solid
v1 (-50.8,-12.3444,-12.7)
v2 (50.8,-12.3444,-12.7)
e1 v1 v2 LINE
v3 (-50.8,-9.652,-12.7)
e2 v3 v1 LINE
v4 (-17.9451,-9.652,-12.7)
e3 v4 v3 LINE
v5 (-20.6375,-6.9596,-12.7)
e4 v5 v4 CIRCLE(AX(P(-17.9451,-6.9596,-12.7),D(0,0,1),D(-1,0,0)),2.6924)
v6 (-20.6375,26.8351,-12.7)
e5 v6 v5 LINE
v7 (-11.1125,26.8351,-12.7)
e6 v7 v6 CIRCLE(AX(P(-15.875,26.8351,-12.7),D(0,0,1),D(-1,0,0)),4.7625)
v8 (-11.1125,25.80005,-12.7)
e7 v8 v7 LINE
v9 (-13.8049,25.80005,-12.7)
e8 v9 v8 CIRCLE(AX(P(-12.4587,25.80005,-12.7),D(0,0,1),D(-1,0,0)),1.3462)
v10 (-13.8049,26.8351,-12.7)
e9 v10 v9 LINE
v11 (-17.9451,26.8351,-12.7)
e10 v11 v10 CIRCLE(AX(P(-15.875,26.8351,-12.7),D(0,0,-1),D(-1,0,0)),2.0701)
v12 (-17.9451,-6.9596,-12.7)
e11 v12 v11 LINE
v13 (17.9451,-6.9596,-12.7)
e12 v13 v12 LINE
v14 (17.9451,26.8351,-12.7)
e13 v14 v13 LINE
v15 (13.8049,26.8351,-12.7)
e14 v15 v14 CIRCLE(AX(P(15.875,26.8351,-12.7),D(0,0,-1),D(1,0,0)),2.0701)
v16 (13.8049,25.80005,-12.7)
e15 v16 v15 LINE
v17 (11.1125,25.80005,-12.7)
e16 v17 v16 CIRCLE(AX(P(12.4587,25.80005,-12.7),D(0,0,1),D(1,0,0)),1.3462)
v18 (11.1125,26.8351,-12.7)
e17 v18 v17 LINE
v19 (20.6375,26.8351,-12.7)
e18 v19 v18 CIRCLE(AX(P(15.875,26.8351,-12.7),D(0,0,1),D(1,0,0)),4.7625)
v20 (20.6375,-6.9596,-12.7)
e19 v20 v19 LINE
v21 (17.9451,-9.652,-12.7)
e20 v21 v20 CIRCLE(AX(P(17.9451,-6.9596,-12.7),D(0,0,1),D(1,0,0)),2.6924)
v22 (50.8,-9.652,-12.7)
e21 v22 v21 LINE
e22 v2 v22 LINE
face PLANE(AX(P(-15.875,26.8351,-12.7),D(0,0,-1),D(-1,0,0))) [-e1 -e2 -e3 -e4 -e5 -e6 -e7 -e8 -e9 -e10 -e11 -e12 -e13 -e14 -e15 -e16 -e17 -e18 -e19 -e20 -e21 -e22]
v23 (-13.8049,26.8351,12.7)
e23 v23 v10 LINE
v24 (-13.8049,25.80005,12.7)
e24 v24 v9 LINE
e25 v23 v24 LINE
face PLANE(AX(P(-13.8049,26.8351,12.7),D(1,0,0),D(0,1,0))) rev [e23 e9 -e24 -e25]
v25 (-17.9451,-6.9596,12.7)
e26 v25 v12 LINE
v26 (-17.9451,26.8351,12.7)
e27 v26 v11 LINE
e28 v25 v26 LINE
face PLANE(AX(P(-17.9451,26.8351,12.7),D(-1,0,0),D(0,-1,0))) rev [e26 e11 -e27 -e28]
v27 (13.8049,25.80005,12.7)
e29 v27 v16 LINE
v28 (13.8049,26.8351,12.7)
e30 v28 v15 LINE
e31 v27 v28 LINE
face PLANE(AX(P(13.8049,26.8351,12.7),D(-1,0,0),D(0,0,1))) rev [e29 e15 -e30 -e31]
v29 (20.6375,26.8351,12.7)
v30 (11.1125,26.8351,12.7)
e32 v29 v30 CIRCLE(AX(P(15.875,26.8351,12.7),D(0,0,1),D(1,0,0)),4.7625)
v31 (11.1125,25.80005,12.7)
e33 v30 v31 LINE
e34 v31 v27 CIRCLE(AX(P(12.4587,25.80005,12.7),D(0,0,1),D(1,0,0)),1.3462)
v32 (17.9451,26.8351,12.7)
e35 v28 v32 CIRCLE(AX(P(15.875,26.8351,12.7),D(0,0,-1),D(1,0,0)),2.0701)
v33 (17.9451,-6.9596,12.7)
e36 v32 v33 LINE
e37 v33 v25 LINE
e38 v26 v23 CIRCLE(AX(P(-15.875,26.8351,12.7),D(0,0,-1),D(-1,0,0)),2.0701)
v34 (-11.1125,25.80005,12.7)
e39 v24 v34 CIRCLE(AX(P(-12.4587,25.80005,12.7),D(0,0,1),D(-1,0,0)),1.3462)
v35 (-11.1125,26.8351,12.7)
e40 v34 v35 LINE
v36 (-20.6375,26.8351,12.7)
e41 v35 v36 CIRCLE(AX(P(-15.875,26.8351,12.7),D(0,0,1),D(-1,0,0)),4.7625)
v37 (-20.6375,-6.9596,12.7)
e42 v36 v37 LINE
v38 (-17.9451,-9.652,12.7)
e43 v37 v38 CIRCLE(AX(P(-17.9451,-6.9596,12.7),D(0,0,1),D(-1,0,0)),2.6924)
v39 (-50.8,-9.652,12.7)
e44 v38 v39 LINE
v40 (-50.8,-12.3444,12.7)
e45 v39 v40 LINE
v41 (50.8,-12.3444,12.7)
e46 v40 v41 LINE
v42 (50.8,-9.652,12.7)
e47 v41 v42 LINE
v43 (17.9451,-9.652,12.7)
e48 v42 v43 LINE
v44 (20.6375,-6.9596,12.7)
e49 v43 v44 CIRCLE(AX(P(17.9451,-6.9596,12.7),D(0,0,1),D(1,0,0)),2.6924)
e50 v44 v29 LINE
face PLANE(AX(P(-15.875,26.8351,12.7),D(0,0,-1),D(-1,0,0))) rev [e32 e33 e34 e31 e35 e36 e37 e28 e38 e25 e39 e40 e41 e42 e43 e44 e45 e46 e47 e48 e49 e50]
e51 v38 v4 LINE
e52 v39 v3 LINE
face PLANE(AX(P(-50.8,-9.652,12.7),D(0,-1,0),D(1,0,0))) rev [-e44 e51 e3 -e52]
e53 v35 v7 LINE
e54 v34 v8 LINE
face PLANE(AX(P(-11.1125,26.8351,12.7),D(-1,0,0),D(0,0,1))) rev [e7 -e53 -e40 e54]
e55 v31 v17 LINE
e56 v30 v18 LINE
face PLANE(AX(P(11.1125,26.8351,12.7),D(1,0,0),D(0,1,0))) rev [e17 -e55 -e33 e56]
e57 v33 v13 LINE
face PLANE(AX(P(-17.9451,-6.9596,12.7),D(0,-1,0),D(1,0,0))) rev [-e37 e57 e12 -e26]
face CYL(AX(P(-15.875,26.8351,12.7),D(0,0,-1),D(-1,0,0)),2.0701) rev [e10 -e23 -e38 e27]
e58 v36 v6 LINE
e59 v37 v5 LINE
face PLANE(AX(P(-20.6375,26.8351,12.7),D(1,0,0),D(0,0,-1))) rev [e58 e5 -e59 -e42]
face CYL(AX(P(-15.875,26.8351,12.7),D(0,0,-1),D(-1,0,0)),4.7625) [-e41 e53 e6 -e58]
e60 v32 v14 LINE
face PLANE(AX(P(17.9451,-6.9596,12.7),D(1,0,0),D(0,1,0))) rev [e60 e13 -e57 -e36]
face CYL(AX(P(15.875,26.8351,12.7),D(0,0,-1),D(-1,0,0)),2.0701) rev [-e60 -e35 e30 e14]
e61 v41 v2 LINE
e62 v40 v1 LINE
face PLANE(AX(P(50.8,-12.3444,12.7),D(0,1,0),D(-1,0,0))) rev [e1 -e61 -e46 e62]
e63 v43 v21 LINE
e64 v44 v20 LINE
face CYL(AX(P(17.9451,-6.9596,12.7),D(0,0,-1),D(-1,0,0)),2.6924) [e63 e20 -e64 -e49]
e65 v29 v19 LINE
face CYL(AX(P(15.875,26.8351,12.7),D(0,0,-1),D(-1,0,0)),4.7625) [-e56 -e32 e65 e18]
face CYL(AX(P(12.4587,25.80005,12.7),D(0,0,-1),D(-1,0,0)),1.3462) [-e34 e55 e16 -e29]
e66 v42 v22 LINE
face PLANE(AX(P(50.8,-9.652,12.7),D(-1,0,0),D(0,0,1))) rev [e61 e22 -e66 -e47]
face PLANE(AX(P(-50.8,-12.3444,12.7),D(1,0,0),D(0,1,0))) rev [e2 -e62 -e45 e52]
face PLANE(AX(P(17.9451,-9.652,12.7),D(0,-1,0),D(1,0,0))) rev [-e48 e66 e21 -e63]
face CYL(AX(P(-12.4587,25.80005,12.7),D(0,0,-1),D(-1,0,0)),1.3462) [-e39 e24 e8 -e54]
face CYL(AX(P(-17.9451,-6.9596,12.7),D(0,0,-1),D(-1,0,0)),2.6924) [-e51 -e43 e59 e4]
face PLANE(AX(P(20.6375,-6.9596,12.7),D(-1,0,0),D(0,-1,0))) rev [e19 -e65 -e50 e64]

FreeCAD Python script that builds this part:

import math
import FreeCAD as App
import Part
import Sketcher
from FreeCAD import Vector
Q = App.Units.Quantity

doc = App.newDocument("Part")
body = doc.addObject("PartDesign::Body", "Body")

sketch1 = body.newObject("Sketcher::SketchObject", "Sketch")
sketch1.AttachmentSupport = (doc.getObject("XY_Plane"), [""])
sketch1.MapMode = "FlatFace"
sketch1.addGeometry([
    Part.LineSegment(Vector(-20.6, 26.8, 0), Vector(-20.6, -7, 0)),
    Part.ArcOfCircle(Part.Circle(Vector(-17.9, -7, 0), Vector(0, 0, 1), 2.7), math.radians(180), math.radians(270)),
    Part.LineSegment(Vector(-17.9, -9.7, 0), Vector(-50.8, -9.7, 0)),
    Part.LineSegment(Vector(-50.8, -9.7, 0), Vector(-50.8, -12.3, 0)),
    Part.LineSegment(Vector(-50.8, -12.3, 0), Vector(50.8, -12.3, 0)),
    Part.LineSegment(Vector(50.8, -12.3, 0), Vector(50.8, -9.7, 0)),
    Part.LineSegment(Vector(50.8, -9.7, 0), Vector(17.9, -9.7, 0)),
    Part.ArcOfCircle(Part.Circle(Vector(17.9, -7, 0), Vector(0, 0, 1), 2.7), math.radians(-90), math.radians(0)),
    Part.LineSegment(Vector(20.6, -7, 0), Vector(20.6, 26.8, 0)),
    Part.ArcOfCircle(Part.Circle(Vector(15.9, 26.8, 0), Vector(0, 0, 1), 4.8), math.radians(0), math.radians(180)),
    Part.LineSegment(Vector(11.1, 26.8, 0), Vector(11.1, 25.8, 0)),
    Part.ArcOfCircle(Part.Circle(Vector(12.5, 25.8, 0), Vector(0, 0, 1), 1.3), math.radians(180), math.radians(360)),
    Part.LineSegment(Vector(13.8, 25.8, 0), Vector(13.8, 26.8, 0)),
    Part.ArcOfCircle(Part.Circle(Vector(15.9, 26.8, 0), Vector(0, 0, 1), 2.1), math.radians(0), math.radians(180)),
    Part.LineSegment(Vector(17.9, 26.8, 0), Vector(17.9, -7, 0)),
    Part.LineSegment(Vector(17.9, -7, 0), Vector(-17.9, -7, 0)),
    Part.LineSegment(Vector(-17.9, -7, 0), Vector(-17.9, 26.8, 0)),
    Part.ArcOfCircle(Part.Circle(Vector(-15.9, 26.8, 0), Vector(0, 0, 1), 2.1), math.radians(0), math.radians(180)),
    Part.LineSegment(Vector(-13.8, 26.8, 0), Vector(-13.8, 25.8, 0)),
    Part.ArcOfCircle(Part.Circle(Vector(-12.5, 25.8, 0), Vector(0, 0, 1), 1.3), math.radians(180), math.radians(360)),
    Part.LineSegment(Vector(-11.1, 25.8, 0), Vector(-11.1, 26.8, 0)),
    Part.ArcOfCircle(Part.Circle(Vector(-15.9, 26.8, 0), Vector(0, 0, 1), 4.8), math.radians(0), math.radians(180)),
], False)
sketch1.addConstraint([
    Sketcher.Constraint("Tangent", 0, 2, 1, 1),
    Sketcher.Constraint("Tangent", 1, 2, 2, 1),
    Sketcher.Constraint("Coincident", 2, 2, 3, 1),
    Sketcher.Constraint("Coincident", 3, 2, 4, 1),
    Sketcher.Constraint("Coincident", 4, 2, 5, 1),
    Sketcher.Constraint("Coincident", 5, 2, 6, 1),
    Sketcher.Constraint("Tangent", 6, 2, 7, 1),
    Sketcher.Constraint("Tangent", 7, 2, 8, 1),
    Sketcher.Constraint("Tangent", 8, 2, 9, 1),
    Sketcher.Constraint("Tangent", 9, 2, 10, 1),
    Sketcher.Constraint("Tangent", 10, 2, 11, 1),
    Sketcher.Constraint("Tangent", 11, 2, 12, 1),
    Sketcher.Constraint("Tangent", 12, 2, 13, 2),
    Sketcher.Constraint("Tangent", 13, 1, 14, 1),
    Sketcher.Constraint("Coincident", 14, 2, 15, 1),
    Sketcher.Constraint("Coincident", 15, 2, 16, 1),
    Sketcher.Constraint("Tangent", 16, 2, 17, 2),
    Sketcher.Constraint("Tangent", 17, 1, 18, 1),
    Sketcher.Constraint("Tangent", 18, 2, 19, 1),
    Sketcher.Constraint("Tangent", 19, 2, 20, 1),
    Sketcher.Constraint("Tangent", 20, 2, 21, 1),
    Sketcher.Constraint("Tangent", 21, 2, 0, 1),
    Sketcher.Constraint("Vertical", 0),
    Sketcher.Constraint("Horizontal", 2),
    Sketcher.Constraint("Vertical", 3),
    Sketcher.Constraint("Horizontal", 4),
    Sketcher.Constraint("Vertical", 5),
    Sketcher.Constraint("Horizontal", 6),
    Sketcher.Constraint("Vertical", 8),
    Sketcher.Constraint("Vertical", 10),
    Sketcher.Constraint("Vertical", 12),
    Sketcher.Constraint("Vertical", 14),
    Sketcher.Constraint("Horizontal", 15),
    Sketcher.Constraint("Vertical", 16),
    Sketcher.Constraint("Vertical", 18),
    Sketcher.Constraint("Vertical", 20),
    Sketcher.Constraint("Coincident", 13, 3, 9, 3),
    Sketcher.Constraint("Coincident", 21, 3, 17, 3),
    Sketcher.Constraint("Coincident", 14, 2, 7, 3),
    Sketcher.Constraint("Coincident", 15, 2, 1, 3),
    Sketcher.Constraint("Equal", 1, 7),
    Sketcher.Constraint("Equal", 13, 17),
    Sketcher.Constraint("Symmetric", 9, 3, 17, 3, -2),
    Sketcher.Constraint("Horizontal", 11, 3, 19, 3),
    Sketcher.Constraint("Equal", 2, 6),
    Sketcher.Constraint("DistanceX", 4, 1, 4, 2, Q("4 in")),
    Sketcher.Constraint("Radius", 1, Q("0.106 in")),
    Sketcher.Constraint("Radius", 9, Q("0.1875 in")),
    Sketcher.Constraint("DistanceX", 15, 2, 15, 1, Q("1.413 in")),
    Sketcher.Constraint("DistanceY", 3, 2, 3, 1, Q("0.106 in")),
    Sketcher.Constraint("DistanceY", 1, 2, -1, 1, Q("0.38 in")),
    Sketcher.Constraint("DistanceY", 0, 2, 0, 1, Q("1.3305 in")),
    Sketcher.Constraint("DistanceY", 10, 2, 10, 1, Q("1.03505 mm")),
])
pad1 = body.newObject("PartDesign::Pad", "Pad")
pad1.Profile = sketch1
pad1.Length = Q("1 in")
pad1.Midplane = True

doc.recompute()
